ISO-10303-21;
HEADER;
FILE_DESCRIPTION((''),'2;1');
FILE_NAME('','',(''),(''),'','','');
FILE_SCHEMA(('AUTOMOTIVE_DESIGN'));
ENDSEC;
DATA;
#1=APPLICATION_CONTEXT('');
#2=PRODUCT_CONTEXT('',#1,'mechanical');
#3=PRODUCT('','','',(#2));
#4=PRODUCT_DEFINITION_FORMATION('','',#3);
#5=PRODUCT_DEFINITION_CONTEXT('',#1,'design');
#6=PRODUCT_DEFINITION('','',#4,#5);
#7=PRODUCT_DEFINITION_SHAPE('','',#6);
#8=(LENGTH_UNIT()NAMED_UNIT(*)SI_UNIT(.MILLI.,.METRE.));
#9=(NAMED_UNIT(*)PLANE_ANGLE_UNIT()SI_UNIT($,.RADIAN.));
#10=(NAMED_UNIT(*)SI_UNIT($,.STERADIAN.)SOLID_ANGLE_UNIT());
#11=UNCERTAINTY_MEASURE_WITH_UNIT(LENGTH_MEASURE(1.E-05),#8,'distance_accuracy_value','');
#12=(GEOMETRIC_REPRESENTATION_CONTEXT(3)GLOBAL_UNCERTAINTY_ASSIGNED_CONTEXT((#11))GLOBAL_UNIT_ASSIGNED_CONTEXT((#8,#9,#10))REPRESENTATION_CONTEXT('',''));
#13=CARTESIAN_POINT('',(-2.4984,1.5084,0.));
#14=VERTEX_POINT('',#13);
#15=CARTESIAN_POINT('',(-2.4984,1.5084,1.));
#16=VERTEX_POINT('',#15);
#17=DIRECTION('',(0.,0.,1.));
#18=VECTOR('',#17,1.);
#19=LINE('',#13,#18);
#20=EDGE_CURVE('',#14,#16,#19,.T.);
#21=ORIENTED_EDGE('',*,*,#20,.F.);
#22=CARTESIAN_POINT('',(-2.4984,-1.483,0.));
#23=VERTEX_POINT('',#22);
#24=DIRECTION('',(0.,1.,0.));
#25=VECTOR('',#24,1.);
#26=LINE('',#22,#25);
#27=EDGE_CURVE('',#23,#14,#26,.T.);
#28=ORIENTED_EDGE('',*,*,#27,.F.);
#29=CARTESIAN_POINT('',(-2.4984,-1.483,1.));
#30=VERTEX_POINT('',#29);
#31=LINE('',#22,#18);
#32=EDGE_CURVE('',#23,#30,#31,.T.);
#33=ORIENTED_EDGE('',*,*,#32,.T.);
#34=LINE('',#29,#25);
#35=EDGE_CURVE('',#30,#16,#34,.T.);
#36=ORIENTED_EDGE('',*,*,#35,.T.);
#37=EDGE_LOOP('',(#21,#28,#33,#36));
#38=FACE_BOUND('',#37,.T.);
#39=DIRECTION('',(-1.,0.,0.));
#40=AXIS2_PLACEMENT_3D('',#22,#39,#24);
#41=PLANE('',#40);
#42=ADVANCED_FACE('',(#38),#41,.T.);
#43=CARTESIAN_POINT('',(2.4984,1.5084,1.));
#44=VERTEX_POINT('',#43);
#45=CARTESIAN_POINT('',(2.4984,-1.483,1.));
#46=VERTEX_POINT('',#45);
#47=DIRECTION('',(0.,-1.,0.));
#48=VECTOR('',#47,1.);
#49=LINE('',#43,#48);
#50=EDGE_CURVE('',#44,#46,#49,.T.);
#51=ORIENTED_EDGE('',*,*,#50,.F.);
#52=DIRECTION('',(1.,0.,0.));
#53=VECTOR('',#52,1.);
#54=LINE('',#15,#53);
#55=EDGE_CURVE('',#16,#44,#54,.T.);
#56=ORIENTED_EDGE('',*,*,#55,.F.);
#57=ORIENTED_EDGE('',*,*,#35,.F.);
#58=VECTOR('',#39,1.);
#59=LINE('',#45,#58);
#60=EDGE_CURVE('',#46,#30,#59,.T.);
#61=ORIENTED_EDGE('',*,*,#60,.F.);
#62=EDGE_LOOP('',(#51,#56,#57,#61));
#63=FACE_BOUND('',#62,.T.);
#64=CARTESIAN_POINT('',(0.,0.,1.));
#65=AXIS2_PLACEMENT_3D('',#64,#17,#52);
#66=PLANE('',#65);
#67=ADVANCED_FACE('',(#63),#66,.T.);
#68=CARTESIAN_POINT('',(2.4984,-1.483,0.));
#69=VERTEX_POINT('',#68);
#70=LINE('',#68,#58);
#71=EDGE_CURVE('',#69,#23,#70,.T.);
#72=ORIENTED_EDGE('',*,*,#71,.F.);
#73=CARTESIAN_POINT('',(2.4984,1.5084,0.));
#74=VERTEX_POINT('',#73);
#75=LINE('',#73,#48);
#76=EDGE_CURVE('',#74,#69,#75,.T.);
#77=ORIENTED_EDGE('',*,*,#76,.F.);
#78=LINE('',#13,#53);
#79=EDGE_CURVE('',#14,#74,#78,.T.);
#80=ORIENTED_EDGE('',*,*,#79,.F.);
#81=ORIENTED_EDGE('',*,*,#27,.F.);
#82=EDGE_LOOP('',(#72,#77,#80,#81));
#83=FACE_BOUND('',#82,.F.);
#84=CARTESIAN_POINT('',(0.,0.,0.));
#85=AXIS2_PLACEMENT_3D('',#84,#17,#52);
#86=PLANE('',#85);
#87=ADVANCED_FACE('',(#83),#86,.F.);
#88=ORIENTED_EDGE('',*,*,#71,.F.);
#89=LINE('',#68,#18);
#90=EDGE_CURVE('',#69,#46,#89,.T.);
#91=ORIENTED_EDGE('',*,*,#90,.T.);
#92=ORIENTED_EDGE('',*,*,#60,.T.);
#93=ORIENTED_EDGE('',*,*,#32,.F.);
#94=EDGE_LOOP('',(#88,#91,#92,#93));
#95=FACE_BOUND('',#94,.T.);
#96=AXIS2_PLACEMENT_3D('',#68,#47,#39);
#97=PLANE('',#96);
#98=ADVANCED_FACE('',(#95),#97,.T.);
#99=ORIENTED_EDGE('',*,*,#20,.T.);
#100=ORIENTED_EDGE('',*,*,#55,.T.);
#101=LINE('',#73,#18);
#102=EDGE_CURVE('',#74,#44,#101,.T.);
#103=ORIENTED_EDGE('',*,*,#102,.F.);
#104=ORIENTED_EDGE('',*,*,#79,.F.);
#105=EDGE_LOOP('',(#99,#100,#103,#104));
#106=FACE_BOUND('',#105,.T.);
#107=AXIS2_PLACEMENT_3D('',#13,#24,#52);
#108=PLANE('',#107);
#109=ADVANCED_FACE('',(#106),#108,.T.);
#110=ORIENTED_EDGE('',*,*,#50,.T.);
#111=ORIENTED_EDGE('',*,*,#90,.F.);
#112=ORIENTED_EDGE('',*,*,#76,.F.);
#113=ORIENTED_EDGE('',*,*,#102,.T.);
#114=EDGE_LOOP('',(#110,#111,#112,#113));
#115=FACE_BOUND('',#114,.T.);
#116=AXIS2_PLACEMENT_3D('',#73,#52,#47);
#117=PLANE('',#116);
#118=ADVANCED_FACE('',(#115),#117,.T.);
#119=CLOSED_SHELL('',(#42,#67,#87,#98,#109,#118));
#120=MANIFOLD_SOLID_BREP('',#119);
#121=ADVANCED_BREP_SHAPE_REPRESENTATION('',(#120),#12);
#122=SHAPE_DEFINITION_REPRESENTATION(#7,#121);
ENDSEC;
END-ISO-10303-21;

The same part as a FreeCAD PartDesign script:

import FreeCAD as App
import Part
import Sketcher
from FreeCAD import Vector
Q = App.Units.Quantity


def add_polygon(sketch, points):
    """Adds a closed chain of lines whose ends are joined by coincident constraints."""
    first, n = sketch.GeometryCount, len(points)
    for a, b in zip(points, points[1:] + points[:1]):
        sketch.addGeometry(Part.LineSegment(App.Vector(*a, 0), App.Vector(*b, 0)), False)
    for i in range(n):
        sketch.addConstraint(Sketcher.Constraint("Coincident", first + i, 2, first + (i + 1) % n, 1))

doc = App.newDocument("Part")
body = doc.addObject("PartDesign::Body", "Body")

sketch1 = doc.addObject("Sketcher::SketchObject", "Sketch")
body.addObject(sketch1)
sketch1.AttachmentSupport = (doc.XY_Plane, [""])
sketch1.MapMode = "FlatFace"
add_polygon(sketch1, [(2.5, 1.5), (-2.5, 1.5), (-2.5, -1.5), (2.5, -1.5)])
sketch1.addConstraint([
    Sketcher.Constraint("Horizontal", 0),
    Sketcher.Constraint("Vertical", 1),
    Sketcher.Constraint("Horizontal", 2),
    Sketcher.Constraint("Vertical", 3),
    Sketcher.Constraint("DistanceX", 0, 2, 0, 1, Q("4.9968 mm")),
    Sketcher.Constraint("DistanceY", 1, 2, 1, 1, Q("2.9914 mm")),
    Sketcher.Constraint("DistanceY", 1, 2, -1, 1, Q("1.483 mm")),
    Sketcher.Constraint("DistanceX", 0, 2, -1, 1, Q("2.4984 mm")),
])
pad1 = doc.addObject("PartDesign::Pad", "Pad")
body.addObject(pad1)
pad1.Profile = sketch1
pad1.Length = 1

doc.recompute()
